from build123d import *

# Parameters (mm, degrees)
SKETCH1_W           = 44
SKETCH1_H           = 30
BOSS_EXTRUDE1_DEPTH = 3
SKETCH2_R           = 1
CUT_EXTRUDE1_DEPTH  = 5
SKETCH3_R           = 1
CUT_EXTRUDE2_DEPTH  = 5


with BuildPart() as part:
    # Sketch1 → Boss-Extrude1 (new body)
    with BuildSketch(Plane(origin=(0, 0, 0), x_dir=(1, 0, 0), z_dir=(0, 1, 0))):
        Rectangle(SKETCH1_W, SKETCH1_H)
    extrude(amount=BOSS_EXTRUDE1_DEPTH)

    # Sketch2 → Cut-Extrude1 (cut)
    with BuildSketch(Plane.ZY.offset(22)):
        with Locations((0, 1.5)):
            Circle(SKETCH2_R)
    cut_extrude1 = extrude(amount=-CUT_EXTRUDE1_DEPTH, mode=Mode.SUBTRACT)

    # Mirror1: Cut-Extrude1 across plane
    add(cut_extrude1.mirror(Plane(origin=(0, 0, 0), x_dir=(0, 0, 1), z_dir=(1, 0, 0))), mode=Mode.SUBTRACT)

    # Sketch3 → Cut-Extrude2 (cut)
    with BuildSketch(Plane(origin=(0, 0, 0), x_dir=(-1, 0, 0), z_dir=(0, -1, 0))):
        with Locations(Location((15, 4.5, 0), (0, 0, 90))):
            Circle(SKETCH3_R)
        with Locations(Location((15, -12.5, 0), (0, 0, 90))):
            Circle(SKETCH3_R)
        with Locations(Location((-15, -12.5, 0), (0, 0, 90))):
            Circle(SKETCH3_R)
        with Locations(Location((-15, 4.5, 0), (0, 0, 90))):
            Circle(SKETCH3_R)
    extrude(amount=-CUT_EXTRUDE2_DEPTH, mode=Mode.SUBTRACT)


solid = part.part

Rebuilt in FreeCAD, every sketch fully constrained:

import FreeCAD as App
import Part
import Sketcher


def add_polygon(sketch, points):
    """Adds a closed chain of lines whose ends are joined by coincident constraints."""
    first, n = sketch.GeometryCount, len(points)
    for a, b in zip(points, points[1:] + points[:1]):
        sketch.addGeometry(Part.LineSegment(App.Vector(*a, 0), App.Vector(*b, 0)), False)
    for i in range(n):
        sketch.addConstraint(Sketcher.Constraint("Coincident", first + i, 2, first + (i + 1) % n, 1))

doc = App.newDocument("Part")
params = doc.addObject("Spreadsheet::Sheet", "Params")
for row, (alias, value) in enumerate([
    ("sketch1_width", "44 mm"),
    ("sketch1_height", "30 mm"),
    ("pad1_length", "3 mm"),
    ("sketch2_diameter", "2 mm"),
    ("pocket1_length", "5 mm"),
    ("sketch3_diameter", "2 mm"),
    ("pocket2_length", "5 mm"),
], start=1):
    params.set(f"A{row}", alias)
    params.set(f"B{row}", "=" + value)
    params.setAlias(f"B{row}", alias)

body = doc.addObject("PartDesign::Body", "Body")

# Sketch on XZ plane
sketch1 = doc.addObject("Sketcher::SketchObject", "Sketch")
body.addObject(sketch1)
sketch1.AttachmentSupport = (doc.XZ_Plane, [""])
sketch1.MapMode = "FlatFace"
add_polygon(sketch1, [(-22, -15), (-22, 15), (22, 15), (22, -15)])  # lines 0-3
sketch1.addConstraint([
    Sketcher.Constraint("Vertical", 0),
    Sketcher.Constraint("Horizontal", 1),
    Sketcher.Constraint("Vertical", 2),
    Sketcher.Constraint("Horizontal", 3),
    Sketcher.Constraint("Symmetric", 0, 2, 2, 2, -1, 1),
    Sketcher.Constraint("DistanceX", 1, 1, 1, 2, 44.0),
    Sketcher.Constraint("DistanceY", 0, 1, 0, 2, 30.0),
])
sketch1.setExpression("Constraints[9]", "Params.sketch1_width")
sketch1.setExpression("Constraints[10]", "Params.sketch1_height")
pad1 = doc.addObject("PartDesign::Pad", "Pad")
body.addObject(pad1)
pad1.Profile = sketch1
pad1.setExpression("Length", "Params.pad1_length")
pad1.Reversed = True

# Sketch on YZ plane
sketch2 = doc.addObject("Sketcher::SketchObject", "Sketch001")
body.addObject(sketch2)
sketch2.AttachmentSupport = (doc.YZ_Plane, [""])
sketch2.MapMode = "FlatFace"
sketch2.AttachmentOffset = App.Placement(App.Vector(0, 0, -22), App.Rotation())
sketch2.addGeometry(Part.Circle(App.Vector(1.5, 0, 0), App.Vector(0, 0, 1), 1), False)
sketch2.addConstraint([
    Sketcher.Constraint("PointOnObject", 0, 3, -1),
    Sketcher.Constraint("Diameter", 0, 2.0),
    Sketcher.Constraint("DistanceX", -1, 1, 0, 3, 1.5),
])
sketch2.setExpression("Constraints[1]", "Params.sketch2_diameter")
pocket1 = doc.addObject("PartDesign::Pocket", "Pocket")
body.addObject(pocket1)
pocket1.Profile = sketch2
pocket1.setExpression("Length", "Params.pocket1_length")
pocket1.Reversed = True
doc.recompute()

mirrored = doc.addObject("PartDesign::Mirrored", "Mirrored")
body.addObject(mirrored)
mirrored.Originals = [pocket1]
mirrored.MirrorPlane = (doc.YZ_Plane, [""])
body.Tip = mirrored

# Sketch on XZ plane
sketch3 = doc.addObject("Sketcher::SketchObject", "Sketch002")
body.addObject(sketch3)
sketch3.AttachmentSupport = (doc.XZ_Plane, [""])
sketch3.MapMode = "FlatFace"
sketch3.addGeometry([
    Part.Circle(App.Vector(-15, -4.5, 0), App.Vector(0, 0, 1), 1),
    Part.Circle(App.Vector(-15, 12.5, 0), App.Vector(0, 0, 1), 1),
    Part.Circle(App.Vector(15, 12.5, 0), App.Vector(0, 0, 1), 1),
    Part.Circle(App.Vector(15, -4.5, 0), App.Vector(0, 0, 1), 1),
], False)
sketch3.addConstraint([
    Sketcher.Constraint("Equal", 0, 1),
    Sketcher.Constraint("Equal", 1, 2),
    Sketcher.Constraint("Equal", 2, 3),
    Sketcher.Constraint("Symmetric", 1, 3, 2, 3, -2),
    Sketcher.Constraint("Symmetric", 0, 3, 3, 3, -2),
    Sketcher.Constraint("Vertical", 0, 3, 1, 3),
    Sketcher.Constraint("Diameter", 0, 2.0),
    Sketcher.Constraint("DistanceX", 0, 3, -1, 1, 15.0),
    Sketcher.Constraint("DistanceY", 0, 3, 1, 3, 17.0),
    Sketcher.Constraint("DistanceY", 0, 3, -1, 1, 4.5),
])
sketch3.setExpression("Constraints[6]", "Params.sketch3_diameter")
pocket2 = doc.addObject("PartDesign::Pocket", "Pocket001")
body.addObject(pocket2)
pocket2.Profile = sketch3
pocket2.setExpression("Length", "Params.pocket2_length")

doc.recompute()
